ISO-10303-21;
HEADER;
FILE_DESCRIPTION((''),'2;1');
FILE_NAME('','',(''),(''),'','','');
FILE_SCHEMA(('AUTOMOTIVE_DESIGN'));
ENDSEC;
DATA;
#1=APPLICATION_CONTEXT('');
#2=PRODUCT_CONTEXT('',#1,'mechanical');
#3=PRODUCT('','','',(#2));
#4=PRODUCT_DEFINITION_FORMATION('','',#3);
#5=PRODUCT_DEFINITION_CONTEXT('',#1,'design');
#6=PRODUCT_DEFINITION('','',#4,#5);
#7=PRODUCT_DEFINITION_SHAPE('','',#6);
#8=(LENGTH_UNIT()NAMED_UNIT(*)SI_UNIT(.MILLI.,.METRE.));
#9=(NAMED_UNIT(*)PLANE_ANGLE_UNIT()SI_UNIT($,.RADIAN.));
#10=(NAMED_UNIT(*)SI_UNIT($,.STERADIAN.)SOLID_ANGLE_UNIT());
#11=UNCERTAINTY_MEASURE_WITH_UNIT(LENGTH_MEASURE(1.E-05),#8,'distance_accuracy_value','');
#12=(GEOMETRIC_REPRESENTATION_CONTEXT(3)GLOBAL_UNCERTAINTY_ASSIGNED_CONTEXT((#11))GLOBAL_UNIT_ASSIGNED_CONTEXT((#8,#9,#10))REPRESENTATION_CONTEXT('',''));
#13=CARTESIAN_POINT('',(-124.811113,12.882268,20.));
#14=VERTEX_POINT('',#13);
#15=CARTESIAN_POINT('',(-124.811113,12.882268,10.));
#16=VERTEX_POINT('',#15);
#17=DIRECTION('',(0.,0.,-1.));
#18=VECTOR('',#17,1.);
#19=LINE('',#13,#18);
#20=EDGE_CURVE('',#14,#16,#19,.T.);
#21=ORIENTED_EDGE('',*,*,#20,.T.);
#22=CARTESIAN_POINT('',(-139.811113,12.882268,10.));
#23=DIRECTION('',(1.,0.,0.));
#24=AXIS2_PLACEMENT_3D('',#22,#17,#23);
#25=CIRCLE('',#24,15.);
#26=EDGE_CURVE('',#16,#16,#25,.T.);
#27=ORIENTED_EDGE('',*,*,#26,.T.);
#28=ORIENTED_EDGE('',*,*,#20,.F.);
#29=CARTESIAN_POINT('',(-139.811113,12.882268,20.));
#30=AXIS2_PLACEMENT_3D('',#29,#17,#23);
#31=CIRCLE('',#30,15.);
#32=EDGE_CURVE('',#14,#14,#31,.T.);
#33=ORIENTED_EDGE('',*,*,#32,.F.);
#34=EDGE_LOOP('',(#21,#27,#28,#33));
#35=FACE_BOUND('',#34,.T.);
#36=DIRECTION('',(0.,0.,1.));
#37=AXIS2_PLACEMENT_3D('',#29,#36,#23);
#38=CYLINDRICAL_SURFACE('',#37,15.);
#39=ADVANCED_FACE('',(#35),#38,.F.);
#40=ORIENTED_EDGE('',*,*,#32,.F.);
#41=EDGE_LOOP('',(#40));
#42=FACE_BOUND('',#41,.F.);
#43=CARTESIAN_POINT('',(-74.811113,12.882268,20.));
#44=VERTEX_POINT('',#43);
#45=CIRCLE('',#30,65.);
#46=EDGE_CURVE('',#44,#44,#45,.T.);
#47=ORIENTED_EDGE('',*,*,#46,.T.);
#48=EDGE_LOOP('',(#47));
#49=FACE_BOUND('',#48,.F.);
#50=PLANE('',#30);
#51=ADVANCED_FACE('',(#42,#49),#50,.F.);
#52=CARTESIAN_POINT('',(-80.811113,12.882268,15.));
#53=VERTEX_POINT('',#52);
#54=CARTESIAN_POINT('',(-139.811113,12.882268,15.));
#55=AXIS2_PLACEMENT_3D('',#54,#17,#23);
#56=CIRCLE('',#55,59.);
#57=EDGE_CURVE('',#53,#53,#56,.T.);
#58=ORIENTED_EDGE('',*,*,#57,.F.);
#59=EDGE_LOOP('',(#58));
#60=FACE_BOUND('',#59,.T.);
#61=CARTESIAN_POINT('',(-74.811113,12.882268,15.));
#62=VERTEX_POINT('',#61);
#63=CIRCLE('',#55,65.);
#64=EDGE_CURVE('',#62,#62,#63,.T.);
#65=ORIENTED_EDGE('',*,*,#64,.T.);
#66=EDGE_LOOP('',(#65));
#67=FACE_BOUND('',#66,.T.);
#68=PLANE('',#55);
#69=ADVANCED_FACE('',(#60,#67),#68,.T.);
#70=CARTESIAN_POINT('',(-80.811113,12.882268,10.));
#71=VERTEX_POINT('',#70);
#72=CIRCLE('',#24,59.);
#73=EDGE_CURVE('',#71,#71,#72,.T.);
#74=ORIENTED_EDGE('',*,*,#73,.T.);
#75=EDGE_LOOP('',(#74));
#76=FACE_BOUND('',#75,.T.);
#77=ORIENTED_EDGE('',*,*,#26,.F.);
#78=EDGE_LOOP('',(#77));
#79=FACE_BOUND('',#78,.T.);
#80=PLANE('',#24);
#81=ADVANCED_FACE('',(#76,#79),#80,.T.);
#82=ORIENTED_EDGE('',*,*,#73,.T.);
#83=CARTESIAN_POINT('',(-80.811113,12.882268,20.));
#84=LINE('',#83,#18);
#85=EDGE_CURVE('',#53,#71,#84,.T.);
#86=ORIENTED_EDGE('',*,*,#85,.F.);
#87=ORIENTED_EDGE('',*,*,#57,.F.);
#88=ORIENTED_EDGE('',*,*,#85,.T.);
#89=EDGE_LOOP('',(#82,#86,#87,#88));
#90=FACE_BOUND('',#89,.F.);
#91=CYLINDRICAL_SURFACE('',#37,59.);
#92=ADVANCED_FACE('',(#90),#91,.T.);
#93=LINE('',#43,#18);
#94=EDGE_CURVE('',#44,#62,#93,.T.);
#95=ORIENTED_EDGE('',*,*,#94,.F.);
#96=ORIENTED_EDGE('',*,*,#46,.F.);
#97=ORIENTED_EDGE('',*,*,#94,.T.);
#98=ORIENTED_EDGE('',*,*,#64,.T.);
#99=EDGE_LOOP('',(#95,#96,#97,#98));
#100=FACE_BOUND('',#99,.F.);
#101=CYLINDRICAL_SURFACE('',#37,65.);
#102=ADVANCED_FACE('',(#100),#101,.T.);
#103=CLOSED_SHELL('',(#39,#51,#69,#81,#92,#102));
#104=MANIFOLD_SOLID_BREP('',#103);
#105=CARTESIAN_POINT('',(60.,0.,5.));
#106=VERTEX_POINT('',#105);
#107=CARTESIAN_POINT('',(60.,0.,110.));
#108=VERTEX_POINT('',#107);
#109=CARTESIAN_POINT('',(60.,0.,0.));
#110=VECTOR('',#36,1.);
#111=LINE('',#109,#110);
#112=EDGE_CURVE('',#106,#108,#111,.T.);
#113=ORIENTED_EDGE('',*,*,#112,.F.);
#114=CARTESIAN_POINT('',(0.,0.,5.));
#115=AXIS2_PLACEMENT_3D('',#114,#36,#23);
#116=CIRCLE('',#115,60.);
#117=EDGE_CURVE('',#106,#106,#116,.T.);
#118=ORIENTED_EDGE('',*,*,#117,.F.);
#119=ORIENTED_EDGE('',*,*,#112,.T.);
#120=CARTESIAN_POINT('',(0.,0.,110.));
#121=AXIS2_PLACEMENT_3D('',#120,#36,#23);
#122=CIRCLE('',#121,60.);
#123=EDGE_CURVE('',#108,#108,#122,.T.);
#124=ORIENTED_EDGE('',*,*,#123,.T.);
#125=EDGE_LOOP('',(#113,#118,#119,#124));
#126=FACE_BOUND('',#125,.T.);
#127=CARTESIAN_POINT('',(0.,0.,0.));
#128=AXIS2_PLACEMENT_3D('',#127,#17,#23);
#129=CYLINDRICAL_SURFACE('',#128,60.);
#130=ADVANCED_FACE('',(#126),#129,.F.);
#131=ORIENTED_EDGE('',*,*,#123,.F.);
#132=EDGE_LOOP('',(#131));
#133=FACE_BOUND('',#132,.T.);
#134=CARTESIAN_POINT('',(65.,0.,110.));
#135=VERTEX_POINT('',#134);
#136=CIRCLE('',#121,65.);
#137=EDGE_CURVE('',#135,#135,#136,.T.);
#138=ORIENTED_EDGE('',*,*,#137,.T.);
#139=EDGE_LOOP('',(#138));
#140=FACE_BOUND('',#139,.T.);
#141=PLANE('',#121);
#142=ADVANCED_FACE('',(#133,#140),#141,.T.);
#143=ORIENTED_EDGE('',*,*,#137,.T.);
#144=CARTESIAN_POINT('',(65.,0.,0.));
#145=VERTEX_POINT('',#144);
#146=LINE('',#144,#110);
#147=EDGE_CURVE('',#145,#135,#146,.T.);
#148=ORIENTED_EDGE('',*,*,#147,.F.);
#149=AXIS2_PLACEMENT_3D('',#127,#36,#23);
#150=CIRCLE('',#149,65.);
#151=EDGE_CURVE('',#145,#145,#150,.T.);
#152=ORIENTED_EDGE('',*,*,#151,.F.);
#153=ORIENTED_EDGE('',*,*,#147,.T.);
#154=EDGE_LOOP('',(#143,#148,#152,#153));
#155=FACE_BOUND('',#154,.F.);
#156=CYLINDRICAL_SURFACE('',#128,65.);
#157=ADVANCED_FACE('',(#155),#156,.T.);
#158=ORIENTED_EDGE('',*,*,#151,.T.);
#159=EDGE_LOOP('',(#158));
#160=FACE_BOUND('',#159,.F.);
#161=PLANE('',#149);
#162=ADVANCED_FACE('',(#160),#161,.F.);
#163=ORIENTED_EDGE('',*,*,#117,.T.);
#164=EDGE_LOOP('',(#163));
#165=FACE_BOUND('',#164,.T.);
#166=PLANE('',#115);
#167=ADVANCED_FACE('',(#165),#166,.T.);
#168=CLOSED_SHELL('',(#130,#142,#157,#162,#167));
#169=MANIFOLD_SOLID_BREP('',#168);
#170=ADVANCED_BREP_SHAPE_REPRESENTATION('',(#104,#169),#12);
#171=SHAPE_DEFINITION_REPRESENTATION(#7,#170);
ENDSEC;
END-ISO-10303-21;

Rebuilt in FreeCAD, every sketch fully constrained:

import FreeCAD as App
import Part
import Sketcher
from FreeCAD import Vector
Q = App.Units.Quantity

doc = App.newDocument("Part")
params = doc.addObject("Spreadsheet::Sheet", "Params")
for row, (alias, value) in enumerate([
    ("sketch1_diameter", "120 mm"),
    ("pad1_length", "5 mm"),
    ("sketch2_diameter", "130 mm"),
    ("sketch2_diameter2", "120 mm"),
    ("pad2_length", "110 mm"),
    ("sketch3_diameter", "118 mm"),
    ("sketch3_diameter2", "30 mm"),
    ("pad3_length", "10 mm"),
    ("sketch4_diameter", "130 mm"),
    ("sketch4_diameter2", "118 mm"),
    ("pad4_length", "5 mm"),
], start=1):
    params.set(f"A{row}", alias)
    params.set(f"B{row}", "=" + value)
    params.setAlias(f"B{row}", alias)

body = doc.addObject("PartDesign::Body", "Body")

# Sketch on XY plane
sketch1 = doc.addObject("Sketcher::SketchObject", "Sketch")
body.addObject(sketch1)
sketch1.AttachmentSupport = (doc.XY_Plane, [""])
sketch1.MapMode = "FlatFace"
sketch1.addGeometry(Part.Circle(Vector(0, 0, 0), Vector(0, 0, 1), 60), False)
sketch1.addConstraint([
    Sketcher.Constraint("Coincident", 0, 3, -1, 1),
    Sketcher.Constraint("Diameter", 0, Q("120 mm")),
])
sketch1.setExpression("Constraints[1]", "Params.sketch1_diameter")
pad1 = doc.addObject("PartDesign::Pad", "Pad")
body.addObject(pad1)
pad1.Profile = sketch1
pad1.setExpression("Length", "Params.pad1_length")

# Sketch on XY plane
sketch2 = doc.addObject("Sketcher::SketchObject", "Sketch001")
body.addObject(sketch2)
sketch2.AttachmentSupport = (doc.XY_Plane, [""])
sketch2.MapMode = "FlatFace"
sketch2.addGeometry([
    Part.Circle(Vector(0, 0, 0), Vector(0, 0, 1), 65),
    Part.Circle(Vector(0, 0, 0), Vector(0, 0, 1), 60),
], False)
sketch2.addConstraint([
    Sketcher.Constraint("Coincident", 0, 3, -1, 1),
    Sketcher.Constraint("Coincident", 1, 3, -1, 1),
    Sketcher.Constraint("Diameter", 0, Q("130 mm")),
    Sketcher.Constraint("Diameter", 1, Q("120 mm")),
])
sketch2.setExpression("Constraints[2]", "Params.sketch2_diameter")
sketch2.setExpression("Constraints[3]", "Params.sketch2_diameter2")
pad2 = doc.addObject("PartDesign::Pad", "Pad001")
body.addObject(pad2)
pad2.Profile = sketch2
pad2.setExpression("Length", "Params.pad2_length")
body2 = doc.addObject("PartDesign::Body", "Body001")

# Sketch on XY plane
sketch3 = doc.addObject("Sketcher::SketchObject", "Sketch002")
body2.addObject(sketch3)
sketch3.AttachmentSupport = (doc.getObject("XY_Plane001"), [""])
sketch3.MapMode = "FlatFace"
sketch3.addGeometry([
    Part.Circle(Vector(-140, 13, 0), Vector(0, 0, 1), 59),
    Part.Circle(Vector(-140, 13, 0), Vector(0, 0, 1), 15),
], False)
sketch3.addConstraint([
    Sketcher.Constraint("Coincident", 1, 3, 0, 3),
    Sketcher.Constraint("Diameter", 0, Q("118 mm")),
    Sketcher.Constraint("Diameter", 1, Q("30 mm")),
    Sketcher.Constraint("DistanceX", 0, 3, -1, 1, Q("139.811113 mm")),
    Sketcher.Constraint("DistanceY", -1, 1, 0, 3, Q("12.882268 mm")),
])
sketch3.setExpression("Constraints[1]", "Params.sketch3_diameter")
sketch3.setExpression("Constraints[2]", "Params.sketch3_diameter2")
pad3 = doc.addObject("PartDesign::Pad", "Pad002")
body2.addObject(pad3)
pad3.Profile = sketch3
pad3.setExpression("Length", "Params.pad3_length")

# Sketch on XY plane
sketch4 = doc.addObject("Sketcher::SketchObject", "Sketch003")
body2.addObject(sketch4)
sketch4.AttachmentSupport = (doc.getObject("XY_Plane001"), [""])
sketch4.MapMode = "FlatFace"
sketch4.addGeometry([
    Part.Circle(Vector(-140, 13, 0), Vector(0, 0, 1), 65),
    Part.Circle(Vector(-140, 13, 0), Vector(0, 0, 1), 59),
], False)
sketch4.addConstraint([
    Sketcher.Constraint("Coincident", 1, 3, 0, 3),
    Sketcher.Constraint("Diameter", 0, Q("130 mm")),
    Sketcher.Constraint("Diameter", 1, Q("118 mm")),
    Sketcher.Constraint("DistanceX", 0, 3, -1, 1, Q("139.811113 mm")),
    Sketcher.Constraint("DistanceY", -1, 1, 0, 3, Q("12.882268 mm")),
])
sketch4.setExpression("Constraints[1]", "Params.sketch4_diameter")
sketch4.setExpression("Constraints[2]", "Params.sketch4_diameter2")
pad4 = doc.addObject("PartDesign::Pad", "Pad003")
body2.addObject(pad4)
pad4.Profile = sketch4
pad4.setExpression("Length", "Params.pad4_length")
body3 = doc.addObject("PartDesign::Body", "Body002")
doc.recompute()

body2.Placement = App.Placement(Vector(0, 25.764536, 20), App.Rotation(Vector(-1, 0, 0), 180))
boolean = doc.addObject("PartDesign::Boolean", "Boolean")
body3.addObject(boolean)
boolean.Type = "Fuse"
boolean.addObjects([body2])

doc.recompute()
